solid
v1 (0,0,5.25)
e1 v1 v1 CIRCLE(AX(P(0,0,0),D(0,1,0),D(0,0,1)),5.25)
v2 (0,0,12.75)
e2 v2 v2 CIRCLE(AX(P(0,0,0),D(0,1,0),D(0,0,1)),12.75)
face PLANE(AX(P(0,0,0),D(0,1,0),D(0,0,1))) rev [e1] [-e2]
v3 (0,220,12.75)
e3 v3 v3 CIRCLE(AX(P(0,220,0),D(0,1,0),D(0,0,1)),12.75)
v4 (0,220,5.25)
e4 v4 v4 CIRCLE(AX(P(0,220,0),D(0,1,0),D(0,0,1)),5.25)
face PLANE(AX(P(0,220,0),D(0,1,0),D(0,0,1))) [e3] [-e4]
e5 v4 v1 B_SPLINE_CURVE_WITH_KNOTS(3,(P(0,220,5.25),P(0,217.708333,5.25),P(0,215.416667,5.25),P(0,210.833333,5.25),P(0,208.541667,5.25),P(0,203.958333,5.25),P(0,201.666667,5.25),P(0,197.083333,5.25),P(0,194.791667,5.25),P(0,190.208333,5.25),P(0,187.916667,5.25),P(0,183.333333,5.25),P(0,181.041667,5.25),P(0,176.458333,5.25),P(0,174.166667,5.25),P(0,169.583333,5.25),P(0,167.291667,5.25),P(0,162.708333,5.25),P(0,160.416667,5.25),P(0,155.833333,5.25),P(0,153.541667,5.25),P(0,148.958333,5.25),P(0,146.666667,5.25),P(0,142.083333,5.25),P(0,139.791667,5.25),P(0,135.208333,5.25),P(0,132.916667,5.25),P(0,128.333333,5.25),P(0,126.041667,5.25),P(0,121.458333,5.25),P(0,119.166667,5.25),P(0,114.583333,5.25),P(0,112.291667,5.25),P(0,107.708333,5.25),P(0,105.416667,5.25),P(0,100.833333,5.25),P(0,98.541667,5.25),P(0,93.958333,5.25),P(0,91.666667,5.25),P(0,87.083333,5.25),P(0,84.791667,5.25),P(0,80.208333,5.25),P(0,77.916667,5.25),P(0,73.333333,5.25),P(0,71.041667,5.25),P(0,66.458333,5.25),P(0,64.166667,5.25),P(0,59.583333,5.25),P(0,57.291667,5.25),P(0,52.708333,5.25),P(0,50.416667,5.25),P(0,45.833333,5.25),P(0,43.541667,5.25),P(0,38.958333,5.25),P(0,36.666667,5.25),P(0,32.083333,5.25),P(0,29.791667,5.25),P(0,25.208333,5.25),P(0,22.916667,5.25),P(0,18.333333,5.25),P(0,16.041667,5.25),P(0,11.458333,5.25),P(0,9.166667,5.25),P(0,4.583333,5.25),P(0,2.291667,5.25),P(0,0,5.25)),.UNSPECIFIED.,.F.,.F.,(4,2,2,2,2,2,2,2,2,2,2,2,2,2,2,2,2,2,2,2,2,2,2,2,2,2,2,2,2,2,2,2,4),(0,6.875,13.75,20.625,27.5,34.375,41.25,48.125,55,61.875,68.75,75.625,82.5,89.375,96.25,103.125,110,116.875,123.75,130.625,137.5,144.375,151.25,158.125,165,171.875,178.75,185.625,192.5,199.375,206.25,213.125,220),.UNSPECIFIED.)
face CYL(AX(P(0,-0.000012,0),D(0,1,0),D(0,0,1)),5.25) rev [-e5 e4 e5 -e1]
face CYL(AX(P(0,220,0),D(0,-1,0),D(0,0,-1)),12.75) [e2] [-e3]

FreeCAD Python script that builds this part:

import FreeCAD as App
import Part
import Sketcher

doc = App.newDocument("Part")
body = doc.addObject("PartDesign::Body", "Body")

# Sketch on XZ plane
sketch1 = body.newObject("Sketcher::SketchObject", "Sketch")
sketch1.AttachmentSupport = (doc.getObject("XZ_Plane"), [""])
sketch1.MapMode = "FlatFace"
sketch1.addGeometry(Part.Circle(App.Vector(0, 0, 0), App.Vector(0, 0, 1), 12.75), False)
sketch1.addConstraint(Sketcher.Constraint("Coincident", 0, 3, -1, 1))
sketch1.addConstraint(Sketcher.Constraint("Diameter", 0, 25.5))
pad1 = body.newObject("PartDesign::Pad", "Pad")
pad1.Profile = sketch1
pad1.Length = 220
pad1.Reversed = True

# Sketch on XZ plane
sketch2 = body.newObject("Sketcher::SketchObject", "Sketch001")
sketch2.AttachmentSupport = (doc.getObject("XZ_Plane"), [""])
sketch2.MapMode = "FlatFace"
sketch2.addGeometry(Part.Circle(App.Vector(0, 0, 0), App.Vector(0, 0, 1), 5.25), False)
sketch2.addConstraint(Sketcher.Constraint("Coincident", 0, 3, -1, 1))
sketch2.addConstraint(Sketcher.Constraint("Diameter", 0, 10.5))
pocket1 = body.newObject("PartDesign::Pocket", "Pocket")
pocket1.Profile = sketch2
pocket1.Type = "ThroughAll"
pocket1.Midplane = True

doc.recompute()
